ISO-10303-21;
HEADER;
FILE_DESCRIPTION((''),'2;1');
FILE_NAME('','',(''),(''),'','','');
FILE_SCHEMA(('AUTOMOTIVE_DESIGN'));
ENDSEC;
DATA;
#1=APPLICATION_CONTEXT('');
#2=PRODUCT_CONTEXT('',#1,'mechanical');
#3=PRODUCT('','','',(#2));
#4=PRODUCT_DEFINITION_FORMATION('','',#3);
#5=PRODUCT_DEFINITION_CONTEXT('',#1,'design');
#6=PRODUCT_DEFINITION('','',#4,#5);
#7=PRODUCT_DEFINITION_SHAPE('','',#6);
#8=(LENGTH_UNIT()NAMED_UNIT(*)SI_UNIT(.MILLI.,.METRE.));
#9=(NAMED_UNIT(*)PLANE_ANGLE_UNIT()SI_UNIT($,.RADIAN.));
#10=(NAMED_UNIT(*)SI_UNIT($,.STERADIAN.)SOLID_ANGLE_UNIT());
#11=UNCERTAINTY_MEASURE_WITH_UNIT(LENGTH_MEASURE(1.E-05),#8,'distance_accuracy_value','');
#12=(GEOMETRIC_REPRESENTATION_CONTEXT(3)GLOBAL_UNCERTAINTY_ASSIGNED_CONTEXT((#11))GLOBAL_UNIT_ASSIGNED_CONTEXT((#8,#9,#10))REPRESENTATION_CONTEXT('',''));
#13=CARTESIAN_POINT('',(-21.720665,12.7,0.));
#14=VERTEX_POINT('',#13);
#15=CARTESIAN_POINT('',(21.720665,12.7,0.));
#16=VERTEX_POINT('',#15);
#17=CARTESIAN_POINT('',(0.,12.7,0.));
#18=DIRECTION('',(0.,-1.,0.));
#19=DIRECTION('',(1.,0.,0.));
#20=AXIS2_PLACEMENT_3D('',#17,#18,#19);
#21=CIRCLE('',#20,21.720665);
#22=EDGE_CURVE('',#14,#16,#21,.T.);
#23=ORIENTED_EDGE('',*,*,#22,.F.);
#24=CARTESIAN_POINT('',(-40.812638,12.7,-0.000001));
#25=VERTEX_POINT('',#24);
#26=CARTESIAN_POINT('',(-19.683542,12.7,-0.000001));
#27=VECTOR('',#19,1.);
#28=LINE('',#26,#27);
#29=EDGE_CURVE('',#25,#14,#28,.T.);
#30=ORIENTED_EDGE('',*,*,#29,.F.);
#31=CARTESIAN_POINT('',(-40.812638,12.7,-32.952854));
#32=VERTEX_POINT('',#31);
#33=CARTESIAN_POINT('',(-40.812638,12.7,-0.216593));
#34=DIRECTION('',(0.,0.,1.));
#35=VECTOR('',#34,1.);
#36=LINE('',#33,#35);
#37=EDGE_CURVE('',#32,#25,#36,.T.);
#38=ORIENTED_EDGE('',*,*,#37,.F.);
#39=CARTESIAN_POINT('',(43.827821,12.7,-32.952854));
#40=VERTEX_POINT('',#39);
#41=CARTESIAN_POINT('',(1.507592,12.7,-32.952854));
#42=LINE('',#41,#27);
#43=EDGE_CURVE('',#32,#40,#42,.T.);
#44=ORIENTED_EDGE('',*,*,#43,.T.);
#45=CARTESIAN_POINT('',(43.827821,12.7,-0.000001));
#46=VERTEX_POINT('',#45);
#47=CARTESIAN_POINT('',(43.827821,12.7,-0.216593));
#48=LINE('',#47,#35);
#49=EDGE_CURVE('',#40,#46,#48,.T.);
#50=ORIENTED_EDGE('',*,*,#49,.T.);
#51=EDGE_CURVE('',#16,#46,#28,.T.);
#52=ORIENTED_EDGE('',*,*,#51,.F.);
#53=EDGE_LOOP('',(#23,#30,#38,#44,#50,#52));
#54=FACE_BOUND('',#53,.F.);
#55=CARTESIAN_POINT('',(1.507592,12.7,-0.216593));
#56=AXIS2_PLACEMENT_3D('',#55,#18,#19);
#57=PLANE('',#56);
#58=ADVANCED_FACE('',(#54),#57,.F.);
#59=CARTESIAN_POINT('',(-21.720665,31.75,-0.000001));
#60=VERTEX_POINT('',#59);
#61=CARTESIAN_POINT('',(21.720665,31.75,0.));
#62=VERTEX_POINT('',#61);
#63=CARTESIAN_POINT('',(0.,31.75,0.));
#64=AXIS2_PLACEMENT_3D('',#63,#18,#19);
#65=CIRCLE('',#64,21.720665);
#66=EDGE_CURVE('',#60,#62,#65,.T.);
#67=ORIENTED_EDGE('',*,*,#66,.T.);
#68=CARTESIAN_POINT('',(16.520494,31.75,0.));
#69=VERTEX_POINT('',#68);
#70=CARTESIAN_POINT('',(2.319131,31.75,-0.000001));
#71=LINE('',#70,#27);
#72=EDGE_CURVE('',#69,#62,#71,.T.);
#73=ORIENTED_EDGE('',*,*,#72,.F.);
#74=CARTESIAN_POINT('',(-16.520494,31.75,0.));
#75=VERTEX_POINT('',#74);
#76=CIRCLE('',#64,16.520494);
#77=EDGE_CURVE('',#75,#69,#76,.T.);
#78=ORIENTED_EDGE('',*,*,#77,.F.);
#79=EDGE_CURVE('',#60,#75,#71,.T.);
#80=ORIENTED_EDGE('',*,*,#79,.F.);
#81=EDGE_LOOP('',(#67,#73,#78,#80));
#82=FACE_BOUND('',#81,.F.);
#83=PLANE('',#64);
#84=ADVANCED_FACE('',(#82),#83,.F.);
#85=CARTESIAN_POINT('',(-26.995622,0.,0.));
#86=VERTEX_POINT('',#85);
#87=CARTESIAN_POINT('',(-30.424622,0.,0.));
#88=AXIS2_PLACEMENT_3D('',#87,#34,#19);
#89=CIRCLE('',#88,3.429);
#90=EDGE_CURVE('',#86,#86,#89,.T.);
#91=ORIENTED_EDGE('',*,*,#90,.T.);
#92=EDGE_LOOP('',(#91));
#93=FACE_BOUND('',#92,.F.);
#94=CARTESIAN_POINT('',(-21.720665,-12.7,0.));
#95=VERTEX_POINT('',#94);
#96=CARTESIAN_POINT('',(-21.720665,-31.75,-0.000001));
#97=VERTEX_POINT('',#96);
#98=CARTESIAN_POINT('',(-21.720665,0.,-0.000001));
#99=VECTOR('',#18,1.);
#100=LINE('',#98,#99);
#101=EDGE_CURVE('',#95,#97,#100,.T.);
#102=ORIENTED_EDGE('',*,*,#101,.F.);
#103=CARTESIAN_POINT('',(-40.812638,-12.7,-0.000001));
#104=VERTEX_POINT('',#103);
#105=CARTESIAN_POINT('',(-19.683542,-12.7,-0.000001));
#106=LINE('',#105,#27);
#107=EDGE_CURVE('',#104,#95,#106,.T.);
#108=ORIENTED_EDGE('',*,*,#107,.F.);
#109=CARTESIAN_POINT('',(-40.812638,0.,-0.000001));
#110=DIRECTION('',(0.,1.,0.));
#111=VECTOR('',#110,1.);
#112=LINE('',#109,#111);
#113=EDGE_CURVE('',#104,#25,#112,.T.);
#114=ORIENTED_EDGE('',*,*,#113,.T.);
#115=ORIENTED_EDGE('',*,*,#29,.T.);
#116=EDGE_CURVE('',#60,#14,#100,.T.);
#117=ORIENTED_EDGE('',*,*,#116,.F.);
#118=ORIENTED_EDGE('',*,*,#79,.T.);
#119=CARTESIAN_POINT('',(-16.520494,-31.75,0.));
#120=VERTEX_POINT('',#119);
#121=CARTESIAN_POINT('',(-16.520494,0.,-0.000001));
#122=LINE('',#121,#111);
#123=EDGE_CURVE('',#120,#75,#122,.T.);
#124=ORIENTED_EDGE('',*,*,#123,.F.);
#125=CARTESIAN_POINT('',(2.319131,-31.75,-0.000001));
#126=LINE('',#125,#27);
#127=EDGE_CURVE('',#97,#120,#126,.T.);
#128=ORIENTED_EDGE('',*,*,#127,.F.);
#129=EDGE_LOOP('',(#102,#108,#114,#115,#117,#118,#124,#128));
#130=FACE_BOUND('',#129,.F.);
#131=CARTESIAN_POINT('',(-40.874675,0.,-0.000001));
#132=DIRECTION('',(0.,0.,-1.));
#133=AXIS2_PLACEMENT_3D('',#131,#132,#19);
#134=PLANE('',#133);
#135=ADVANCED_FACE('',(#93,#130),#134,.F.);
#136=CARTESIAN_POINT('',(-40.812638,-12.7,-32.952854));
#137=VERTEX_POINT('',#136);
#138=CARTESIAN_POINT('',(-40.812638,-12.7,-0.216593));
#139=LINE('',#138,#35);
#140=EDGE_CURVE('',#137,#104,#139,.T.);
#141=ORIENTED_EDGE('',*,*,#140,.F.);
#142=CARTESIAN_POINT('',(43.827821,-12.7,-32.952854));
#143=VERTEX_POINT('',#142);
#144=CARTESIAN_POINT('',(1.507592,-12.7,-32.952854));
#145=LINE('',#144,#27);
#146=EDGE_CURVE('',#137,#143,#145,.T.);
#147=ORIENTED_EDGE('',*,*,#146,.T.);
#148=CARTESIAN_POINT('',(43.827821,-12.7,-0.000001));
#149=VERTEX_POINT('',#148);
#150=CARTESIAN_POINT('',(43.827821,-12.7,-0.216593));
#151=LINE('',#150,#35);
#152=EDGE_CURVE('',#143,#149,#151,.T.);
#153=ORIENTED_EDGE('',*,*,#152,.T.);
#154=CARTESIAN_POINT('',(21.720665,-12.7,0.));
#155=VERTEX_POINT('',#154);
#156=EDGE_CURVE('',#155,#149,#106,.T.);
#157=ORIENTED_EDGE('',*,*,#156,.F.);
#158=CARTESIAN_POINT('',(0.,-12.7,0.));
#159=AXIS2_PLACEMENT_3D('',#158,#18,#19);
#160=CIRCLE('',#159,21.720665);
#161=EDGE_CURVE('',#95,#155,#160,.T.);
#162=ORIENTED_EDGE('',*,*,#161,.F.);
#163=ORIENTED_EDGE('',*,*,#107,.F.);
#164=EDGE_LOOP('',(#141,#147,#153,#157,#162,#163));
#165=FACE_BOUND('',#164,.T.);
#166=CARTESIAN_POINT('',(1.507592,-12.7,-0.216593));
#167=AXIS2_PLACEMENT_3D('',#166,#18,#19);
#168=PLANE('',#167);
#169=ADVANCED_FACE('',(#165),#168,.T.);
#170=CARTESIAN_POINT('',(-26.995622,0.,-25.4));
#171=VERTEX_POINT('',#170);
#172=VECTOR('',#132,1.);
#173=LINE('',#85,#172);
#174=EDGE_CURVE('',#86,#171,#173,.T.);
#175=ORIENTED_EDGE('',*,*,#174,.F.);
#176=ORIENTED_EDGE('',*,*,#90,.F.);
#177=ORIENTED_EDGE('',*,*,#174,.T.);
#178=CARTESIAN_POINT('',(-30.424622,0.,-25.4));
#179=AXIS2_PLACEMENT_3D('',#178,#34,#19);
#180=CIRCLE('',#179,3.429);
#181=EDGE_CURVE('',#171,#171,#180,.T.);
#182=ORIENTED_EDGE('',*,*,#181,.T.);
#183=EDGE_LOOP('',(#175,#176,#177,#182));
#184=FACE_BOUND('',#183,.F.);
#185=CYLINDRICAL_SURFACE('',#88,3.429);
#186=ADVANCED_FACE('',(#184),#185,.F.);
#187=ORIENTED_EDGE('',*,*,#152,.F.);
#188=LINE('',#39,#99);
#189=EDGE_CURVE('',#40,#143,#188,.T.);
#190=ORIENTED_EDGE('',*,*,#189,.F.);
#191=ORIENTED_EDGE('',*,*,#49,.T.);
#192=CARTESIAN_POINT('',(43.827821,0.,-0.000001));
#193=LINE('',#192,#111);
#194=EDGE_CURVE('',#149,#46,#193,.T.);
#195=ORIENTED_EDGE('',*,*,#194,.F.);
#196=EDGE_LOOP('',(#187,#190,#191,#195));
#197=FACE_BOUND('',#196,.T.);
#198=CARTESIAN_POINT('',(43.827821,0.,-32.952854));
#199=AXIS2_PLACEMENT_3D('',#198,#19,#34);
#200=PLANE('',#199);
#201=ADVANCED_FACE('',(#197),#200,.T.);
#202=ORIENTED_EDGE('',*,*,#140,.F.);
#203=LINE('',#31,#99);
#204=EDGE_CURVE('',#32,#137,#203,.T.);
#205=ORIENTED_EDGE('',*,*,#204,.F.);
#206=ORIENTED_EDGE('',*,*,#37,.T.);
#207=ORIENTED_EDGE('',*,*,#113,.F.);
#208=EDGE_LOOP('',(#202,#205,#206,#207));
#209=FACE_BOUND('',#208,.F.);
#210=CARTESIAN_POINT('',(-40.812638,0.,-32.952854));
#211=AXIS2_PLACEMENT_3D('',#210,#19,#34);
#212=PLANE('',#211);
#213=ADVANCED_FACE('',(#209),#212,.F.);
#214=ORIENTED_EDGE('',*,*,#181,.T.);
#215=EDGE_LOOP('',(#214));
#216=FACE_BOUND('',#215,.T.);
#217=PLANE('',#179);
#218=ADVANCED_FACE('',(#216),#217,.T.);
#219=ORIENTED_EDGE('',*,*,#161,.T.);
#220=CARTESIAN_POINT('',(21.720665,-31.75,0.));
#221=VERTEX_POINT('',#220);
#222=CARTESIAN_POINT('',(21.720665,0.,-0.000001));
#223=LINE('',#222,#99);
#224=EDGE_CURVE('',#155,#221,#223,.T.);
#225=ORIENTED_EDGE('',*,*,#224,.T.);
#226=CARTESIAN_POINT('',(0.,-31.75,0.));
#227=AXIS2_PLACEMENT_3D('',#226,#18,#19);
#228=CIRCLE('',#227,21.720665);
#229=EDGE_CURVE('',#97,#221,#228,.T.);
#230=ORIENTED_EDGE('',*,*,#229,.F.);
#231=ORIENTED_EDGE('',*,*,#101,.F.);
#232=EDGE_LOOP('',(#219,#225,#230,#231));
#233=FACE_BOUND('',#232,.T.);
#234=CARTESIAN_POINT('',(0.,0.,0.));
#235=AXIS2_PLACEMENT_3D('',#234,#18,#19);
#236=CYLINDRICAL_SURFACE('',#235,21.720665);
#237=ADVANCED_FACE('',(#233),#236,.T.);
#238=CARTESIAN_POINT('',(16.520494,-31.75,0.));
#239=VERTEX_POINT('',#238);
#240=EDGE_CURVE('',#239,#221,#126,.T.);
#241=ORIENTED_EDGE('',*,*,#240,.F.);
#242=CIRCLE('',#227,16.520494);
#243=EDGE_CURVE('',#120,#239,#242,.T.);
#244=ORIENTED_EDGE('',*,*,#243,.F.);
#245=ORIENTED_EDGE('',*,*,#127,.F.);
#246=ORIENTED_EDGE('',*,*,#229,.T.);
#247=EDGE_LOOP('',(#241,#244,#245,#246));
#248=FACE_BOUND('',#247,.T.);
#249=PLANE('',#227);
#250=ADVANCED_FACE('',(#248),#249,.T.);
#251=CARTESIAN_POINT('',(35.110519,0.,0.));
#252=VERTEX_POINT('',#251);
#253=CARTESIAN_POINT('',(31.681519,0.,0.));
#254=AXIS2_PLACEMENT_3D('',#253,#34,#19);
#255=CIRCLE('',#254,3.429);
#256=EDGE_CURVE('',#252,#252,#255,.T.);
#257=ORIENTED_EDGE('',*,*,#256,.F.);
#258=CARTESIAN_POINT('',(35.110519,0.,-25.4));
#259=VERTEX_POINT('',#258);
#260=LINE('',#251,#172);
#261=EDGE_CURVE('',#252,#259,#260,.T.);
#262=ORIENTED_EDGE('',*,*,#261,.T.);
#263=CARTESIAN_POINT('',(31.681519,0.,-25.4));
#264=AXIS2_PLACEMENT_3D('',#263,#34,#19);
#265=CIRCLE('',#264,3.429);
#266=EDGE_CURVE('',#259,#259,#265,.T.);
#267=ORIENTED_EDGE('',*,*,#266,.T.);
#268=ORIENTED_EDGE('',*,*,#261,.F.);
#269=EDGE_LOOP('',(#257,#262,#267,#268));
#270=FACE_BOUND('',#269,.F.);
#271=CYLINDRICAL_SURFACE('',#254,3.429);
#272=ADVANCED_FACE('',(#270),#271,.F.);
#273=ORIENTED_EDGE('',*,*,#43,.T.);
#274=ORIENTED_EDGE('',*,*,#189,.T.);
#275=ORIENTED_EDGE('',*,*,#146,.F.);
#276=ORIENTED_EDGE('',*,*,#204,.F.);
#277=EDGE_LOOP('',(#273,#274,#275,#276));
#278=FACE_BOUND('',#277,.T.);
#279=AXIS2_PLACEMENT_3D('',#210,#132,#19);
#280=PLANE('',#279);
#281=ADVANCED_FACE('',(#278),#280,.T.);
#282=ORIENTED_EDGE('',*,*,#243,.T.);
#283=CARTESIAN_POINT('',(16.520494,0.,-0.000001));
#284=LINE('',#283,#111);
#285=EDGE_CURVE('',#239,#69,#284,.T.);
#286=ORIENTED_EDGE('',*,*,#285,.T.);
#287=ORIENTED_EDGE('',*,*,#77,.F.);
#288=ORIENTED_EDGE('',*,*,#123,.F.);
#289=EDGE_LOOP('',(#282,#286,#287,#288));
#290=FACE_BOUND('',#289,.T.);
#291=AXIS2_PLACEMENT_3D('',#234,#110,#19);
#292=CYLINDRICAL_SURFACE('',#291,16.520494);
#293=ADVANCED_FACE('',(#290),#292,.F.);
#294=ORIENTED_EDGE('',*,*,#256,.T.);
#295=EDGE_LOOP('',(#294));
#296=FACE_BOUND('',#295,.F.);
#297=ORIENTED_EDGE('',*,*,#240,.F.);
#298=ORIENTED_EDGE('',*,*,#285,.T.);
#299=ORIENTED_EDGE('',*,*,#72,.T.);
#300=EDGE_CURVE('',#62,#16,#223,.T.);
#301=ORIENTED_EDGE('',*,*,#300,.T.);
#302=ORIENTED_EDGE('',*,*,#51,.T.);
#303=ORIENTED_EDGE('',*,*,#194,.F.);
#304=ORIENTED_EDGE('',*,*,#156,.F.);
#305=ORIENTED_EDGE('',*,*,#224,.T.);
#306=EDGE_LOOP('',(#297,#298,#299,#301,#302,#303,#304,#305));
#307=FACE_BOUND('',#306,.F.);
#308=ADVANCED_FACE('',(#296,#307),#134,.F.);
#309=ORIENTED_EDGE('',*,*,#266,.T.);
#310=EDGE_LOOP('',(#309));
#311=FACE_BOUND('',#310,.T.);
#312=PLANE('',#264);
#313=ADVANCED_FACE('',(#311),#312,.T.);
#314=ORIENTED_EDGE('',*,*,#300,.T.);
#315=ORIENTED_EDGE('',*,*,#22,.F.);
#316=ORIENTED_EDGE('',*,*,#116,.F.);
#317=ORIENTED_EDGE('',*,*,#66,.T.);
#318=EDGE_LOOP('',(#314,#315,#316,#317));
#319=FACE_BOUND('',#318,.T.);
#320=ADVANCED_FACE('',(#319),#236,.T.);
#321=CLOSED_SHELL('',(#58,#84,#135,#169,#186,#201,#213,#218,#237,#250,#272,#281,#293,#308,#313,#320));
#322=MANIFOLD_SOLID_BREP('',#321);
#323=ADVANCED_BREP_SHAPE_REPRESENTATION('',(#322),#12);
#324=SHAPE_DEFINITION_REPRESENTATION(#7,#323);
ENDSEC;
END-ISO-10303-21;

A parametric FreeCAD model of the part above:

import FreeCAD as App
import Part
import Sketcher
Q = App.Units.Quantity

doc = App.newDocument("Part")
body = doc.addObject("PartDesign::Body", "Body")

# Sketch on XZ plane
sketch1 = body.newObject("Sketcher::SketchObject", "Sketch")
sketch1.AttachmentSupport = (doc.getObject("XZ_Plane"), [""])
sketch1.MapMode = "FlatFace"
sketch1.addGeometry([
    Part.Circle(App.Vector(0, 0, 0), App.Vector(0, 0, 1), 21.720665),
    Part.Circle(App.Vector(0, 0, 0), App.Vector(0, 0, 1), 16.520494),
], False)
sketch1.addConstraint([
    Sketcher.Constraint("Coincident", 0, 3, -1, 1),
    Sketcher.Constraint("Coincident", 1, 3, -1, 1),
    Sketcher.Constraint("Diameter", 0, Q("43.44133 mm")),
    Sketcher.Constraint("Diameter", 1, Q("33.040988 mm")),
])
pad1 = body.newObject("PartDesign::Pad", "Pad")
pad1.Profile = sketch1
pad1.Length = Q("2.5 in")
pad1.Midplane = True

# Sketch on XZ plane
sketch2 = body.newObject("Sketcher::SketchObject", "Sketch001")
sketch2.AttachmentSupport = (doc.getObject("XZ_Plane"), [""])
sketch2.MapMode = "FlatFace"
sketch2.addGeometry([
    Part.LineSegment(App.Vector(-40.812638, 32.519667, 0), App.Vector(-40.812638, -32.952854, 0)),  # 0
    Part.LineSegment(App.Vector(-40.812638, -32.952854, 0), App.Vector(43.827821, -32.952854, 0)),  # 1
    Part.LineSegment(App.Vector(43.827821, -32.952854, 0), App.Vector(43.827821, 32.519667, 0)),  # 2
    Part.LineSegment(App.Vector(43.827821, 32.519667, 0), App.Vector(-40.812638, 32.519667, 0)),  # 3
    Part.Circle(App.Vector(0, 0, 0), App.Vector(0, 0, 1), 21.720665),  # 4
], False)
sketch2.addConstraint([
    Sketcher.Constraint("Coincident", 0, 2, 1, 1),
    Sketcher.Constraint("Coincident", 1, 2, 2, 1),
    Sketcher.Constraint("Coincident", 2, 2, 3, 1),
    Sketcher.Constraint("Coincident", 3, 2, 0, 1),
    Sketcher.Constraint("Vertical", 0),
    Sketcher.Constraint("Horizontal", 1),
    Sketcher.Constraint("Vertical", 2),
    Sketcher.Constraint("Horizontal", 3),
    Sketcher.Constraint("Coincident", 4, 3, -1, 1),
    Sketcher.Constraint("Diameter", 4, Q("43.44133 mm")),
    Sketcher.Constraint("DistanceX", 1, 1, 1, 2, Q("84.640459 mm")),
    Sketcher.Constraint("DistanceY", 0, 2, 0, 1, Q("65.472521 mm")),
    Sketcher.Constraint("DistanceX", -1, 1, 1, 2, Q("43.827821 mm")),
    Sketcher.Constraint("DistanceY", 0, 2, -1, 1, Q("32.952854 mm")),
])
pad2 = body.newObject("PartDesign::Pad", "Pad001")
pad2.Profile = sketch2
pad2.Length = Q("1 in")
pad2.Midplane = True

# Sketch on XZ plane
sketch3 = body.newObject("Sketcher::SketchObject", "Sketch002")
sketch3.AttachmentSupport = (doc.getObject("XZ_Plane"), [""])
sketch3.MapMode = "FlatFace"
sketch3.addGeometry([
    Part.LineSegment(App.Vector(-40.874675, 35.076848, 0), App.Vector(-40.874675, 0, 0)),
    Part.LineSegment(App.Vector(-40.874675, 0, 0), App.Vector(45.512937, 0, 0)),
    Part.LineSegment(App.Vector(45.512937, 0, 0), App.Vector(45.512937, 35.076848, 0)),
    Part.LineSegment(App.Vector(45.512937, 35.076848, 0), App.Vector(-40.874675, 35.076848, 0)),
], False)
sketch3.addConstraint([
    Sketcher.Constraint("Coincident", 0, 2, 1, 1),
    Sketcher.Constraint("Coincident", 1, 2, 2, 1),
    Sketcher.Constraint("Coincident", 2, 2, 3, 1),
    Sketcher.Constraint("Coincident", 3, 2, 0, 1),
    Sketcher.Constraint("Vertical", 0),
    Sketcher.Constraint("Horizontal", 1),
    Sketcher.Constraint("Vertical", 2),
    Sketcher.Constraint("Horizontal", 3),
    Sketcher.Constraint("PointOnObject", 0, 2, -1),
    Sketcher.Constraint("DistanceY", 0, 2, 0, 1, Q("35.076849 mm")),
    Sketcher.Constraint("DistanceX", 1, 1, 1, 2, Q("86.387612 mm")),
    Sketcher.Constraint("DistanceX", 0, 2, -1, 1, Q("40.874675 mm")),
])
pocket1 = body.newObject("PartDesign::Pocket", "Pocket")
pocket1.Profile = sketch3
pocket1.Length = Q("2.5 in")
pocket1.Midplane = True

# Sketch on XY plane
sketch4 = body.newObject("Sketcher::SketchObject", "Sketch003")
sketch4.AttachmentSupport = (doc.getObject("XY_Plane"), [""])
sketch4.MapMode = "FlatFace"
sketch4.addGeometry([
    Part.Circle(App.Vector(-30.424622, 0, 0), App.Vector(0, 0, 1), 3.429),
    Part.Circle(App.Vector(31.681519, 0, 0), App.Vector(0, 0, 1), 3.429),
], False)
sketch4.addConstraint([
    Sketcher.Constraint("Equal", 0, 1),
    Sketcher.Constraint("PointOnObject", 0, 3, -1),
    Sketcher.Constraint("PointOnObject", 1, 3, -1),
    Sketcher.Constraint("Diameter", 0, Q("0.27 in")),
    Sketcher.Constraint("DistanceX", 0, 3, -1, 1, Q("30.424622 mm")),
    Sketcher.Constraint("DistanceX", -1, 1, 1, 3, Q("31.681519 mm")),
])
pocket2 = body.newObject("PartDesign::Pocket", "Pocket001")
pocket2.Profile = sketch4
pocket2.Length = Q("1 in")

doc.recompute()
